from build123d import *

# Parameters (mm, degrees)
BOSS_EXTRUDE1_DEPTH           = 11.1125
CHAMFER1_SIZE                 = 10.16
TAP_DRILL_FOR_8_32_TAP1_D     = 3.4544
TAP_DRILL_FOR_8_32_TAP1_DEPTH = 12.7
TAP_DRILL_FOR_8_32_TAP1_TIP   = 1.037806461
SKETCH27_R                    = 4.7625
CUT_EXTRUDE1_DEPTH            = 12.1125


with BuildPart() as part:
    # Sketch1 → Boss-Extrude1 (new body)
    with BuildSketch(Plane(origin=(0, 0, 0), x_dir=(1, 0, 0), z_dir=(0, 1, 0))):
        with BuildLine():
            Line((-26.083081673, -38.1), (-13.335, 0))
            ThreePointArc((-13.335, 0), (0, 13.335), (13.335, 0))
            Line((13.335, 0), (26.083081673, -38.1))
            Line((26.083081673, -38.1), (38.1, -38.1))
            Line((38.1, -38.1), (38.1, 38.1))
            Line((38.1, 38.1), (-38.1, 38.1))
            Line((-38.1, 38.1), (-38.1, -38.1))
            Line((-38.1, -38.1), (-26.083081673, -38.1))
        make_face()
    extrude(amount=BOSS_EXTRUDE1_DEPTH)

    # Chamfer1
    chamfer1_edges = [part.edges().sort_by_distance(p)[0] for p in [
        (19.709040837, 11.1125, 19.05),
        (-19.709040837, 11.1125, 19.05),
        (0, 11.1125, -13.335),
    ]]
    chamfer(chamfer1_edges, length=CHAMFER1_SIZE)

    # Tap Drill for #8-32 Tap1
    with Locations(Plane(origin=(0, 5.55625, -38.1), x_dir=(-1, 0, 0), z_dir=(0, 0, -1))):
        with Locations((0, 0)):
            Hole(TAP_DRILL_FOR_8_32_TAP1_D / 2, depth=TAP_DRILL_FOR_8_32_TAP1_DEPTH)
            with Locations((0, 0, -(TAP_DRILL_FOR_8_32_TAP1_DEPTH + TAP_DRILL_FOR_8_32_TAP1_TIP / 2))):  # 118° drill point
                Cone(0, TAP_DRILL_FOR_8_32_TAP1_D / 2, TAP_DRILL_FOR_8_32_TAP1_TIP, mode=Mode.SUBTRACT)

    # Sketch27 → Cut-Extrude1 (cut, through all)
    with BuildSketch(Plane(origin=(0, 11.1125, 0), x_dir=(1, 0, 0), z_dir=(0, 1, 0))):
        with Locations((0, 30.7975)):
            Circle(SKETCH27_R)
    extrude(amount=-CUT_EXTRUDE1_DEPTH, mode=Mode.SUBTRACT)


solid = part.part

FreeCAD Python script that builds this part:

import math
import FreeCAD as App
import Part
import Sketcher
from FreeCAD import Vector
Q = App.Units.Quantity


def edges_at(feature, points):
    """Names of the edges that pass closest to the given points."""
    edges = feature.Shape.Edges
    near = lambda p: min(range(len(edges)), key=lambda i: edges[i].distToShape(Part.Vertex(*p))[0])
    return sorted({f"Edge{near(p) + 1}" for p in points})

doc = App.newDocument("Part")
body = doc.addObject("PartDesign::Body", "Body")

# Sketch on XZ plane
sketch1 = body.newObject("Sketcher::SketchObject", "Sketch")
sketch1.AttachmentSupport = (doc.getObject("XZ_Plane"), [""])
sketch1.MapMode = "FlatFace"
sketch1.addGeometry(Part.LineSegment(Vector(-26.083082, 38.1, 0), Vector(-13.335, 0, 0)), False)
sketch1.addGeometry(Part.ArcOfCircle(Part.Circle(Vector(0, 0, 0), Vector(0, 0, 1), 13.335), math.radians(180), math.radians(360)), False)
sketch1.addGeometry(Part.LineSegment(Vector(13.335, 0, 0), Vector(26.083082, 38.1, 0)), False)
sketch1.addGeometry(Part.LineSegment(Vector(26.083082, 38.1, 0), Vector(38.1, 38.1, 0)), False)
sketch1.addGeometry(Part.LineSegment(Vector(38.1, 38.1, 0), Vector(38.1, -38.1, 0)), False)
sketch1.addGeometry(Part.LineSegment(Vector(38.1, -38.1, 0), Vector(-38.1, -38.1, 0)), False)
sketch1.addGeometry(Part.LineSegment(Vector(-38.1, -38.1, 0), Vector(-38.1, 38.1, 0)), False)
sketch1.addGeometry(Part.LineSegment(Vector(-38.1, 38.1, 0), Vector(-26.083082, 38.1, 0)), False)
sketch1.addConstraint(Sketcher.Constraint("Coincident", 0, 2, 1, 1))
sketch1.addConstraint(Sketcher.Constraint("Coincident", 1, 2, 2, 1))
sketch1.addConstraint(Sketcher.Constraint("Coincident", 2, 2, 3, 1))
sketch1.addConstraint(Sketcher.Constraint("Coincident", 3, 2, 4, 1))
sketch1.addConstraint(Sketcher.Constraint("Coincident", 4, 2, 5, 1))
sketch1.addConstraint(Sketcher.Constraint("Coincident", 5, 2, 6, 1))
sketch1.addConstraint(Sketcher.Constraint("Coincident", 6, 2, 7, 1))
sketch1.addConstraint(Sketcher.Constraint("Coincident", 7, 2, 0, 1))
sketch1.addConstraint(Sketcher.Constraint("Horizontal", 3))
sketch1.addConstraint(Sketcher.Constraint("Vertical", 4))
sketch1.addConstraint(Sketcher.Constraint("Horizontal", 5))
sketch1.addConstraint(Sketcher.Constraint("Vertical", 6))
sketch1.addConstraint(Sketcher.Constraint("Horizontal", 7))
sketch1.addConstraint(Sketcher.Constraint("Coincident", 1, 3, -1, 1))
sketch1.addConstraint(Sketcher.Constraint("Symmetric", 3, 2, 5, 2, -1, 1))
sketch1.addConstraint(Sketcher.Constraint("Symmetric", 2, 2, 7, 2, -2))
sketch1.addConstraint(Sketcher.Constraint("PointOnObject", 0, 2, -1))
sketch1.addConstraint(Sketcher.Constraint("PointOnObject", 1, 2, -1))
sketch1.addConstraint(Sketcher.Constraint("Equal", 5, 4))
sketch1.addConstraint(Sketcher.Constraint("DistanceX", 5, 2, 5, 1, Q("3 in")))
sketch1.addConstraint(Sketcher.Constraint("Radius", 1, Q("0.525 in")))
sketch1.addConstraint(Sketcher.Constraint("Angle", 0, Q("-71.5 deg")))
pad1 = body.newObject("PartDesign::Pad", "Pad")
pad1.Profile = sketch1
pad1.Length = Q("0.4375 in")
pad1.Reversed = True
doc.recompute()

chamfer = body.newObject("PartDesign::Chamfer", "Chamfer")
chamfer.Base = (pad1, edges_at(pad1, [(19.709, 11.113, 19.05), (-19.709, 11.113, 19.05), (0, 11.113, -13.335)]))
chamfer.Size = Q("0.4 in")

# Sketch on XY plane
sketch2 = body.newObject("Sketcher::SketchObject", "Sketch001")
sketch2.AttachmentSupport = (doc.getObject("XY_Plane"), [""])
sketch2.MapMode = "FlatFace"
sketch2.AttachmentOffset = App.Placement(Vector(0, 0, -1.5 * 25.4), App.Rotation())
sketch2.addGeometry(Part.Circle(Vector(0, 5.55625, 0), Vector(0, 0, 1), 1.7272), False)
sketch2.addConstraint(Sketcher.Constraint("PointOnObject", 0, 3, -2))
sketch2.addConstraint(Sketcher.Constraint("Diameter", 0, Q("0.136 in")))
sketch2.addConstraint(Sketcher.Constraint("DistanceY", -1, 1, 0, 3, Q("0.21875 in")))
doc.recompute()
hole = body.newObject("PartDesign::Hole", "Hole")
hole.Profile = sketch2
hole.ThreadType = "None"
hole.Diameter = Q("0.136 in")
hole.DepthType = "Dimension"
hole.Depth = Q("0.5 in")
hole.DrillPoint = "Angled"
hole.DrillPointAngle = 118
hole.Reversed = True

# Sketch on XZ plane
sketch3 = body.newObject("Sketcher::SketchObject", "Sketch002")
sketch3.AttachmentSupport = (doc.getObject("XZ_Plane"), [""])
sketch3.MapMode = "FlatFace"
sketch3.AttachmentOffset = App.Placement(Vector(0, 0, -0.4375 * 25.4), App.Rotation())
sketch3.addGeometry(Part.Circle(Vector(0, -30.7975, 0), Vector(0, 0, 1), 4.7625), False)
sketch3.addConstraint(Sketcher.Constraint("PointOnObject", 0, 3, -2))
sketch3.addConstraint(Sketcher.Constraint("Diameter", 0, Q("0.375 in")))
sketch3.addConstraint(Sketcher.Constraint("DistanceY", 0, 3, -1, 1, Q("1.2125 in")))
pocket1 = body.newObject("PartDesign::Pocket", "Pocket")
pocket1.Profile = sketch3
pocket1.Type = "ThroughAll"
pocket1.Reversed = True

doc.recompute()
